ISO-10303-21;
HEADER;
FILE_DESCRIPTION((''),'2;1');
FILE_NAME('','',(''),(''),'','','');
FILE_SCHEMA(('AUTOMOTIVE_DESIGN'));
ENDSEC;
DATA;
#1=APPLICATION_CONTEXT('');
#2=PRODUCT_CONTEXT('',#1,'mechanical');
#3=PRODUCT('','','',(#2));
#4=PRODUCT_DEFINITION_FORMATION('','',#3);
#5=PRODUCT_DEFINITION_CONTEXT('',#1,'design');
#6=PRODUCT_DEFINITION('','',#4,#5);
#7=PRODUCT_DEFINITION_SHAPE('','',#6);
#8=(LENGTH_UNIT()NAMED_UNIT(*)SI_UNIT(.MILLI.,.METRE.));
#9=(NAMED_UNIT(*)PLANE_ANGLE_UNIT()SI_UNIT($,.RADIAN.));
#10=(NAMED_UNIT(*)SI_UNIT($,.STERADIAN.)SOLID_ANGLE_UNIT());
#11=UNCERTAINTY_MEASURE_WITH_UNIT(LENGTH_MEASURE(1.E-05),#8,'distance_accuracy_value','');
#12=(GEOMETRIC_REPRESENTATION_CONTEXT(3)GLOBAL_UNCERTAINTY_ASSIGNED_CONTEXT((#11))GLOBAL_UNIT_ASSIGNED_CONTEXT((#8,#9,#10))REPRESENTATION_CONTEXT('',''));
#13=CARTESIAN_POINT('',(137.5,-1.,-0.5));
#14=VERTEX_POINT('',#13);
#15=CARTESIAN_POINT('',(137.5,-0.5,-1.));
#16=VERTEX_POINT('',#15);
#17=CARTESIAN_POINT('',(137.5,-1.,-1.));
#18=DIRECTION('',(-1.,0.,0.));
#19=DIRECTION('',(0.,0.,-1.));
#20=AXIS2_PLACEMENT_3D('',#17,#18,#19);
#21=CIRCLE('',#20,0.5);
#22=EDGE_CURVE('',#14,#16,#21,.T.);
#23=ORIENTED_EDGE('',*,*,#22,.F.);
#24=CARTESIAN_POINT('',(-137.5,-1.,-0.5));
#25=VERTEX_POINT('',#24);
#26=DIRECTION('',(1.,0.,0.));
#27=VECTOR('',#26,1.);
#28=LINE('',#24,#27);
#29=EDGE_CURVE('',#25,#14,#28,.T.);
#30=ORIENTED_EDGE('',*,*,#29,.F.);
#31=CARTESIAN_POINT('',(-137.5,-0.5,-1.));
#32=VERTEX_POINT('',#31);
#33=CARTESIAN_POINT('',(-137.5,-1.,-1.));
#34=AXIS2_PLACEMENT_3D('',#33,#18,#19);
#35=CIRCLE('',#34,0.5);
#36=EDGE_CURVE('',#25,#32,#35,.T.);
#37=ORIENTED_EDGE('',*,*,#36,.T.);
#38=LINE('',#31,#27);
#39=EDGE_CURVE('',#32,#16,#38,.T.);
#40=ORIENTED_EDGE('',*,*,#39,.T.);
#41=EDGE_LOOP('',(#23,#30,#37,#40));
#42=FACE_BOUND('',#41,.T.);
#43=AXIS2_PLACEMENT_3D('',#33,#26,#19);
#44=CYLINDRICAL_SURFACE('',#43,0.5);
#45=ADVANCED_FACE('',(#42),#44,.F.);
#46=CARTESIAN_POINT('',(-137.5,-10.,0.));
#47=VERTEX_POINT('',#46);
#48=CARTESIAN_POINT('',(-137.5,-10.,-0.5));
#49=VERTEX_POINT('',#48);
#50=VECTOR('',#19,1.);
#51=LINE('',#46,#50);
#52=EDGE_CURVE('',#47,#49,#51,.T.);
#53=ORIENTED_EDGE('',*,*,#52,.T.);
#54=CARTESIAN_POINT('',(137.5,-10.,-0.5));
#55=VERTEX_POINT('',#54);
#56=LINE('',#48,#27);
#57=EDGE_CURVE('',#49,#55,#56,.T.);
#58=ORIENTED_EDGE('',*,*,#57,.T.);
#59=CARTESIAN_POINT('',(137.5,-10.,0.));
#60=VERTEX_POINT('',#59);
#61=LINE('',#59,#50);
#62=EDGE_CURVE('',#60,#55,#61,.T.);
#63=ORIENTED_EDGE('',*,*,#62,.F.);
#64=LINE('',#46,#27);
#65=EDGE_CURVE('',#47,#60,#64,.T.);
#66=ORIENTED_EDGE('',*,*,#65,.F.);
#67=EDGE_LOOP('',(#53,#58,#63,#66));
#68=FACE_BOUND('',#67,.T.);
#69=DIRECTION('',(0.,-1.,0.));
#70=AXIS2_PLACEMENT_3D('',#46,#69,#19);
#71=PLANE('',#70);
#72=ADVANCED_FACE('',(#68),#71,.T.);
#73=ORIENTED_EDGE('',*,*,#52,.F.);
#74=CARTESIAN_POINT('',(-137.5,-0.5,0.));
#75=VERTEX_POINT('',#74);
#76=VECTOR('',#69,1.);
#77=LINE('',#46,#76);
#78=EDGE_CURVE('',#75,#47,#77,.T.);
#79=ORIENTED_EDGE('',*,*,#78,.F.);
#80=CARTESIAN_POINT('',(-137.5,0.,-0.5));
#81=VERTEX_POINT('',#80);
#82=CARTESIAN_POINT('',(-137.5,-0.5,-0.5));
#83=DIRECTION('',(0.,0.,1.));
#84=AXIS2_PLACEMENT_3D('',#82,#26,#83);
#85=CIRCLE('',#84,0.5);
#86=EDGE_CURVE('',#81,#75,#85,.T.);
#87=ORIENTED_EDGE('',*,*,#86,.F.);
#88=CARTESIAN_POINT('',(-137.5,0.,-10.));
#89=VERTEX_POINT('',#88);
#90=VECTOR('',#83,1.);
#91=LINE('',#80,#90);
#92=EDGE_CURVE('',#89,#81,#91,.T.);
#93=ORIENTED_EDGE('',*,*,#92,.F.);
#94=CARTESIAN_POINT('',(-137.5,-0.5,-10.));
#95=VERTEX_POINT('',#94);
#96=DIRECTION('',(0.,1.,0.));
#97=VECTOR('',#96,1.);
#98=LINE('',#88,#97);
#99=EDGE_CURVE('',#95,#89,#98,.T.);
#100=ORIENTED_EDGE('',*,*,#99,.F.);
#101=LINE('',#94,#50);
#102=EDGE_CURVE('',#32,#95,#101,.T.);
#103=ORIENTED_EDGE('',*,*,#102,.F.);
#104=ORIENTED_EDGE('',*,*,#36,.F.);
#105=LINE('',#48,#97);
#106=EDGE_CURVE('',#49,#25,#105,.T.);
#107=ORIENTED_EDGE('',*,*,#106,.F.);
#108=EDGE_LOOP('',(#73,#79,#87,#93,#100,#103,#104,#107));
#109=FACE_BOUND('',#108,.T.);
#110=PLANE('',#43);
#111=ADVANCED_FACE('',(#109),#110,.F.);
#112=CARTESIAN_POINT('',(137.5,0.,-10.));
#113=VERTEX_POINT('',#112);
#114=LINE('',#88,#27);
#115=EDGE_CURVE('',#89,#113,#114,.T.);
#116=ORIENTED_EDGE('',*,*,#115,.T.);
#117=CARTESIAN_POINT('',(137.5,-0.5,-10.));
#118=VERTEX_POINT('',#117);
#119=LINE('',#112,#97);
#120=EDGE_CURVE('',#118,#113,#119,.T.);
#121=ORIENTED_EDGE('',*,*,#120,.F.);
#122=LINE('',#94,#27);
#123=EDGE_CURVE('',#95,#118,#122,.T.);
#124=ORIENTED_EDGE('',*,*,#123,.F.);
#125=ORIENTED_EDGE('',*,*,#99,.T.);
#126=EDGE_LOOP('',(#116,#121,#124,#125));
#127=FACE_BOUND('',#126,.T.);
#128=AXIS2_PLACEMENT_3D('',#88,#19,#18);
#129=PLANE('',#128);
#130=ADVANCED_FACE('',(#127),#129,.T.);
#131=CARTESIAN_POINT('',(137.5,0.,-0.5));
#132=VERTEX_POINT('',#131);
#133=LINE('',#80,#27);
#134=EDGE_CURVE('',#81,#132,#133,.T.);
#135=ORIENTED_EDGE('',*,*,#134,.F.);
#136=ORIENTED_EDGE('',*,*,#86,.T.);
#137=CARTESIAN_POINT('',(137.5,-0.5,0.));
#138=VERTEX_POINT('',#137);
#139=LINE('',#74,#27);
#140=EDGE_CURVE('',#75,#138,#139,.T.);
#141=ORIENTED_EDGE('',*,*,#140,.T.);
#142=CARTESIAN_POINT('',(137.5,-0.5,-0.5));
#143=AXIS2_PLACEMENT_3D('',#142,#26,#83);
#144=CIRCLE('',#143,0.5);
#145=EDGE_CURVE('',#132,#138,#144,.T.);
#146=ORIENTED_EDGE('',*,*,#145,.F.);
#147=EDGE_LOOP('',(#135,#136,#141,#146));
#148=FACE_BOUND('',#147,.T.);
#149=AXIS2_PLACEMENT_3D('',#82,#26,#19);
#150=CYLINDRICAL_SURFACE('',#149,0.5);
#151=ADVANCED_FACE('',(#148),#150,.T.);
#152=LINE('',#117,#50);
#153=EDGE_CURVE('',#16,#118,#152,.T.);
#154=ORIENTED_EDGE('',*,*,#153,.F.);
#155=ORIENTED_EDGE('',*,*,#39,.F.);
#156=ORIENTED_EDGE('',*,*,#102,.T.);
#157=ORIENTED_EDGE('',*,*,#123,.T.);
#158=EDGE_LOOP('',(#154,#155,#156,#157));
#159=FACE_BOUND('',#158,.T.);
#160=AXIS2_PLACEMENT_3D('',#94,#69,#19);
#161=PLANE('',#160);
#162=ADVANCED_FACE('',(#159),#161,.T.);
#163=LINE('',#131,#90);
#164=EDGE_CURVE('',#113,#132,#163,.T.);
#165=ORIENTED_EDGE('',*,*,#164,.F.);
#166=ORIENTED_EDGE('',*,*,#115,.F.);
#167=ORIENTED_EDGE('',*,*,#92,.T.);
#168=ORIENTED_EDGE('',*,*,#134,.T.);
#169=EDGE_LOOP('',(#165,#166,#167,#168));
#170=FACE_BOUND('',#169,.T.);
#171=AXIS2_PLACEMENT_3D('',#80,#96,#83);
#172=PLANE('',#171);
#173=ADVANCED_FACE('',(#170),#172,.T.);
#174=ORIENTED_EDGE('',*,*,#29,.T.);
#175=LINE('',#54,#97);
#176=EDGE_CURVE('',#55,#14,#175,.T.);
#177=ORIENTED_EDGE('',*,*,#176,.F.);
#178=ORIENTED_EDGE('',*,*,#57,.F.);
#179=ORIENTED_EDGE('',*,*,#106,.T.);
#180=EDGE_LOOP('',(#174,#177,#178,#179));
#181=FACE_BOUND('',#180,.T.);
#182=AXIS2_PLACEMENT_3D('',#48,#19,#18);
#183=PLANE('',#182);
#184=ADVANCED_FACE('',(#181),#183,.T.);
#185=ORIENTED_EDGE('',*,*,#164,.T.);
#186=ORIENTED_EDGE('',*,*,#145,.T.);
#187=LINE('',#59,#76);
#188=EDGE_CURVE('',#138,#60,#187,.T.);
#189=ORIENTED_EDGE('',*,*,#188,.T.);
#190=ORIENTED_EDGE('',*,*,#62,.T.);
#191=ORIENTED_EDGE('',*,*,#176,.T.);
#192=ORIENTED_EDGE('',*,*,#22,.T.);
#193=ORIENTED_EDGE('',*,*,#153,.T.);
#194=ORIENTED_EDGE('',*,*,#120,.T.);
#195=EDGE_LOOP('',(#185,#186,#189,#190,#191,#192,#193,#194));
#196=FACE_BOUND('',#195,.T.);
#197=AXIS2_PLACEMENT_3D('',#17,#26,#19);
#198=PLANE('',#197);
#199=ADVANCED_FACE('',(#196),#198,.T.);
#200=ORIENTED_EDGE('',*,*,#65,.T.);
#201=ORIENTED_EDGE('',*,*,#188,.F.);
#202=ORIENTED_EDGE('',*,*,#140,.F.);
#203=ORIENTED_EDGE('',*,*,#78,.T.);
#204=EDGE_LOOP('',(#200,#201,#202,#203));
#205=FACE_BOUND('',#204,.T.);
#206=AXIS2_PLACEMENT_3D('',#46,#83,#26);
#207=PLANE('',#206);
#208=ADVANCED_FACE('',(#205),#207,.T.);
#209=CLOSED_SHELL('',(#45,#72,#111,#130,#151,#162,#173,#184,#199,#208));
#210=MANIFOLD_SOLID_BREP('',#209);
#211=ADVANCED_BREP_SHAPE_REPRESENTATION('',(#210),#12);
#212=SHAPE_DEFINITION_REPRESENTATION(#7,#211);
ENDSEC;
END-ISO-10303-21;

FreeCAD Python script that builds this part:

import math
import FreeCAD as App
import Part
import Sketcher
from FreeCAD import Vector

doc = App.newDocument("Part")
body = doc.addObject("PartDesign::Body", "Body")

# Sketch on YZ plane
sketch1 = doc.addObject("Sketcher::SketchObject", "Sketch")
body.addObject(sketch1)
sketch1.AttachmentSupport = (doc.YZ_Plane, [""])
sketch1.MapMode = "FlatFace"
sketch1.addGeometry(Part.LineSegment(Vector(-0.5, 0, 0), Vector(-10, 0, 0)), False)
sketch1.addGeometry(Part.LineSegment(Vector(-10, 0, 0), Vector(-10, -0.5, 0)), False)
sketch1.addGeometry(Part.LineSegment(Vector(-10, -0.5, 0), Vector(-1, -0.5, 0)), False)
sketch1.addGeometry(Part.ArcOfCircle(Part.Circle(Vector(-1, -1, 0), Vector(0, 0, 1), 0.5), math.radians(0), math.radians(90)), False)
sketch1.addGeometry(Part.LineSegment(Vector(-0.5, -1, 0), Vector(-0.5, -10, 0)), False)
sketch1.addGeometry(Part.LineSegment(Vector(-0.5, -10, 0), Vector(0, -10, 0)), False)
sketch1.addGeometry(Part.LineSegment(Vector(0, -10, 0), Vector(0, -0.5, 0)), False)
sketch1.addGeometry(Part.ArcOfCircle(Part.Circle(Vector(-0.5, -0.5, 0), Vector(0, 0, 1), 0.5), math.radians(0), math.radians(90)), False)
sketch1.addConstraint(Sketcher.Constraint("Coincident", 0, 2, 1, 1))
sketch1.addConstraint(Sketcher.Constraint("Coincident", 1, 2, 2, 1))
sketch1.addConstraint(Sketcher.Constraint("Tangent", 2, 2, 3, 2))
sketch1.addConstraint(Sketcher.Constraint("Tangent", 3, 1, 4, 1))
sketch1.addConstraint(Sketcher.Constraint("Coincident", 4, 2, 5, 1))
sketch1.addConstraint(Sketcher.Constraint("Coincident", 5, 2, 6, 1))
sketch1.addConstraint(Sketcher.Constraint("Tangent", 6, 2, 7, 1))
sketch1.addConstraint(Sketcher.Constraint("Tangent", 7, 2, 0, 1))
sketch1.addConstraint(Sketcher.Constraint("Horizontal", 0))
sketch1.addConstraint(Sketcher.Constraint("Vertical", 1))
sketch1.addConstraint(Sketcher.Constraint("Horizontal", 2))
sketch1.addConstraint(Sketcher.Constraint("Vertical", 4))
sketch1.addConstraint(Sketcher.Constraint("Horizontal", 5))
sketch1.addConstraint(Sketcher.Constraint("Vertical", 6))
sketch1.addConstraint(Sketcher.Constraint("Equal", 3, 7))
sketch1.addConstraint(Sketcher.Constraint("PointOnObject", 0, 2, -1))
sketch1.addConstraint(Sketcher.Constraint("PointOnObject", 5, 2, -2))
sketch1.addConstraint(Sketcher.Constraint("Horizontal", 7, 3, 1, 2))
sketch1.addConstraint(Sketcher.Constraint("Vertical", 7, 3, 3, 1))
sketch1.addConstraint(Sketcher.Constraint("Equal", 2, 4))
sketch1.addConstraint(Sketcher.Constraint("Radius", 3, 0.5))
sketch1.addConstraint(Sketcher.Constraint("DistanceX", 2, 1, 2, 2, 9.0))
pad1 = doc.addObject("PartDesign::Pad", "Pad")
body.addObject(pad1)
pad1.Profile = sketch1
pad1.Type = "TwoLengths"
pad1.Length = 137.5
pad1.Length2 = 137.5

doc.recompute()
